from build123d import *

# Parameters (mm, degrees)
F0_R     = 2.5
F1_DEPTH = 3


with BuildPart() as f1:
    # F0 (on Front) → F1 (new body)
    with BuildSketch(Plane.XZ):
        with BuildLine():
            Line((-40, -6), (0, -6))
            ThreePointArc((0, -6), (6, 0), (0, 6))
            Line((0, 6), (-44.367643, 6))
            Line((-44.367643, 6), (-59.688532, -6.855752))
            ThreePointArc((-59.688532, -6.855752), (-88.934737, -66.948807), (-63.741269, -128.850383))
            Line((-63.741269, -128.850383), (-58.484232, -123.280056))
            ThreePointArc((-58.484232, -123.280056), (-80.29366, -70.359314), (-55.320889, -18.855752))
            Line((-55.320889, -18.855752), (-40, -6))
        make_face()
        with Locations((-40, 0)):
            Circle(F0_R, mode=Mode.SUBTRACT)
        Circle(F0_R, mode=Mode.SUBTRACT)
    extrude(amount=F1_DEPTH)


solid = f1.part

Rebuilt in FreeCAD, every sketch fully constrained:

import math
import FreeCAD as App
import Part
import Sketcher

V = App.Vector
Q = App.Units.Quantity

doc = App.newDocument("Part")
body = doc.addObject("PartDesign::Body", "Body")

sketch1 = body.newObject("Sketcher::SketchObject", "Sketch")
sketch1.AttachmentSupport = (doc.getObject("XZ_Plane"), [""])
sketch1.MapMode = "FlatFace"
sketch1.addGeometry([
    Part.LineSegment(V(-40, -6, 0), V(0, -6, 0)),
    Part.ArcOfCircle(Part.Circle(V(0, 0, 0), V(0, 0, 1), 6), math.radians(-90), math.radians(90)),
    Part.LineSegment(V(0, 6, 0), V(-44.367643, 6, 0)),
    Part.LineSegment(V(-44.367643, 6, 0), V(-59.688532, -6.855752, 0)),
    Part.ArcOfCircle(Part.Circle(V(-6.979947, -69.671396, 0), V(0, 0, 1), 82.000001), math.radians(130.000001), math.radians(226.194596)),
    Part.LineSegment(V(-63.741269, -128.850383, 0), V(-58.484232, -123.280056, 0)),
    Part.ArcOfCircle(Part.Circle(V(-10.325757, -72.478863, 0), V(0, 0, 1), 69.999999), math.radians(130), math.radians(226.52972)),
    Part.LineSegment(V(-55.320889, -18.855752, 0), V(-40, -6, 0)),
    Part.Circle(V(-40, 0, 0), V(0, 0, 1), 2.5),
    Part.Circle(V(0, 0, 0), V(0, 0, 1), 2.5),
], False)
sketch1.addConstraint([
    Sketcher.Constraint("Tangent", 0, 2, 1, 1),
    Sketcher.Constraint("Tangent", 1, 2, 2, 1),
    Sketcher.Constraint("Coincident", 2, 2, 3, 1),
    Sketcher.Constraint("Tangent", 3, 2, 4, 1),
    Sketcher.Constraint("Coincident", 4, 2, 5, 1),
    Sketcher.Constraint("Coincident", 5, 2, 6, 2),
    Sketcher.Constraint("Tangent", 6, 1, 7, 1),
    Sketcher.Constraint("Coincident", 7, 2, 0, 1),
    Sketcher.Constraint("Horizontal", 0),
    Sketcher.Constraint("Horizontal", 2),
    Sketcher.Constraint("Coincident", 1, 3, -1, 1),
    Sketcher.Constraint("Coincident", 9, 3, -1, 1),
    Sketcher.Constraint("Equal", 8, 9),
    Sketcher.Constraint("PointOnObject", 8, 3, -1),
    Sketcher.Constraint("Parallel", 3, 7),
    Sketcher.Constraint("Vertical", 8, 3, 7, 2),
    Sketcher.Constraint("Equal", 3, 7),
    Sketcher.Constraint("Diameter", 8, 5.0),
    Sketcher.Constraint("Radius", 1, 6.0),
    Sketcher.Constraint("Radius", 4, 82.000001),
    Sketcher.Constraint("Radius", 6, 69.999999),
    Sketcher.Constraint("DistanceX", 0, 1, 0, 2, 40.0),
    Sketcher.Constraint("Angle", 3, Q("-140.000001 deg")),
    Sketcher.Constraint("Distance", 3, 20.0),
    Sketcher.Constraint("DistanceX", 3, 2, 5, 2, 1.2043),
    Sketcher.Constraint("DistanceX", 2, 2, 2, 1, 44.367643),
    Sketcher.Constraint("DistanceX", 4, 2, -1, 1, 63.741269),
])
pad1 = body.newObject("PartDesign::Pad", "Pad")
pad1.Profile = sketch1
pad1.Length = 3

doc.recompute()
